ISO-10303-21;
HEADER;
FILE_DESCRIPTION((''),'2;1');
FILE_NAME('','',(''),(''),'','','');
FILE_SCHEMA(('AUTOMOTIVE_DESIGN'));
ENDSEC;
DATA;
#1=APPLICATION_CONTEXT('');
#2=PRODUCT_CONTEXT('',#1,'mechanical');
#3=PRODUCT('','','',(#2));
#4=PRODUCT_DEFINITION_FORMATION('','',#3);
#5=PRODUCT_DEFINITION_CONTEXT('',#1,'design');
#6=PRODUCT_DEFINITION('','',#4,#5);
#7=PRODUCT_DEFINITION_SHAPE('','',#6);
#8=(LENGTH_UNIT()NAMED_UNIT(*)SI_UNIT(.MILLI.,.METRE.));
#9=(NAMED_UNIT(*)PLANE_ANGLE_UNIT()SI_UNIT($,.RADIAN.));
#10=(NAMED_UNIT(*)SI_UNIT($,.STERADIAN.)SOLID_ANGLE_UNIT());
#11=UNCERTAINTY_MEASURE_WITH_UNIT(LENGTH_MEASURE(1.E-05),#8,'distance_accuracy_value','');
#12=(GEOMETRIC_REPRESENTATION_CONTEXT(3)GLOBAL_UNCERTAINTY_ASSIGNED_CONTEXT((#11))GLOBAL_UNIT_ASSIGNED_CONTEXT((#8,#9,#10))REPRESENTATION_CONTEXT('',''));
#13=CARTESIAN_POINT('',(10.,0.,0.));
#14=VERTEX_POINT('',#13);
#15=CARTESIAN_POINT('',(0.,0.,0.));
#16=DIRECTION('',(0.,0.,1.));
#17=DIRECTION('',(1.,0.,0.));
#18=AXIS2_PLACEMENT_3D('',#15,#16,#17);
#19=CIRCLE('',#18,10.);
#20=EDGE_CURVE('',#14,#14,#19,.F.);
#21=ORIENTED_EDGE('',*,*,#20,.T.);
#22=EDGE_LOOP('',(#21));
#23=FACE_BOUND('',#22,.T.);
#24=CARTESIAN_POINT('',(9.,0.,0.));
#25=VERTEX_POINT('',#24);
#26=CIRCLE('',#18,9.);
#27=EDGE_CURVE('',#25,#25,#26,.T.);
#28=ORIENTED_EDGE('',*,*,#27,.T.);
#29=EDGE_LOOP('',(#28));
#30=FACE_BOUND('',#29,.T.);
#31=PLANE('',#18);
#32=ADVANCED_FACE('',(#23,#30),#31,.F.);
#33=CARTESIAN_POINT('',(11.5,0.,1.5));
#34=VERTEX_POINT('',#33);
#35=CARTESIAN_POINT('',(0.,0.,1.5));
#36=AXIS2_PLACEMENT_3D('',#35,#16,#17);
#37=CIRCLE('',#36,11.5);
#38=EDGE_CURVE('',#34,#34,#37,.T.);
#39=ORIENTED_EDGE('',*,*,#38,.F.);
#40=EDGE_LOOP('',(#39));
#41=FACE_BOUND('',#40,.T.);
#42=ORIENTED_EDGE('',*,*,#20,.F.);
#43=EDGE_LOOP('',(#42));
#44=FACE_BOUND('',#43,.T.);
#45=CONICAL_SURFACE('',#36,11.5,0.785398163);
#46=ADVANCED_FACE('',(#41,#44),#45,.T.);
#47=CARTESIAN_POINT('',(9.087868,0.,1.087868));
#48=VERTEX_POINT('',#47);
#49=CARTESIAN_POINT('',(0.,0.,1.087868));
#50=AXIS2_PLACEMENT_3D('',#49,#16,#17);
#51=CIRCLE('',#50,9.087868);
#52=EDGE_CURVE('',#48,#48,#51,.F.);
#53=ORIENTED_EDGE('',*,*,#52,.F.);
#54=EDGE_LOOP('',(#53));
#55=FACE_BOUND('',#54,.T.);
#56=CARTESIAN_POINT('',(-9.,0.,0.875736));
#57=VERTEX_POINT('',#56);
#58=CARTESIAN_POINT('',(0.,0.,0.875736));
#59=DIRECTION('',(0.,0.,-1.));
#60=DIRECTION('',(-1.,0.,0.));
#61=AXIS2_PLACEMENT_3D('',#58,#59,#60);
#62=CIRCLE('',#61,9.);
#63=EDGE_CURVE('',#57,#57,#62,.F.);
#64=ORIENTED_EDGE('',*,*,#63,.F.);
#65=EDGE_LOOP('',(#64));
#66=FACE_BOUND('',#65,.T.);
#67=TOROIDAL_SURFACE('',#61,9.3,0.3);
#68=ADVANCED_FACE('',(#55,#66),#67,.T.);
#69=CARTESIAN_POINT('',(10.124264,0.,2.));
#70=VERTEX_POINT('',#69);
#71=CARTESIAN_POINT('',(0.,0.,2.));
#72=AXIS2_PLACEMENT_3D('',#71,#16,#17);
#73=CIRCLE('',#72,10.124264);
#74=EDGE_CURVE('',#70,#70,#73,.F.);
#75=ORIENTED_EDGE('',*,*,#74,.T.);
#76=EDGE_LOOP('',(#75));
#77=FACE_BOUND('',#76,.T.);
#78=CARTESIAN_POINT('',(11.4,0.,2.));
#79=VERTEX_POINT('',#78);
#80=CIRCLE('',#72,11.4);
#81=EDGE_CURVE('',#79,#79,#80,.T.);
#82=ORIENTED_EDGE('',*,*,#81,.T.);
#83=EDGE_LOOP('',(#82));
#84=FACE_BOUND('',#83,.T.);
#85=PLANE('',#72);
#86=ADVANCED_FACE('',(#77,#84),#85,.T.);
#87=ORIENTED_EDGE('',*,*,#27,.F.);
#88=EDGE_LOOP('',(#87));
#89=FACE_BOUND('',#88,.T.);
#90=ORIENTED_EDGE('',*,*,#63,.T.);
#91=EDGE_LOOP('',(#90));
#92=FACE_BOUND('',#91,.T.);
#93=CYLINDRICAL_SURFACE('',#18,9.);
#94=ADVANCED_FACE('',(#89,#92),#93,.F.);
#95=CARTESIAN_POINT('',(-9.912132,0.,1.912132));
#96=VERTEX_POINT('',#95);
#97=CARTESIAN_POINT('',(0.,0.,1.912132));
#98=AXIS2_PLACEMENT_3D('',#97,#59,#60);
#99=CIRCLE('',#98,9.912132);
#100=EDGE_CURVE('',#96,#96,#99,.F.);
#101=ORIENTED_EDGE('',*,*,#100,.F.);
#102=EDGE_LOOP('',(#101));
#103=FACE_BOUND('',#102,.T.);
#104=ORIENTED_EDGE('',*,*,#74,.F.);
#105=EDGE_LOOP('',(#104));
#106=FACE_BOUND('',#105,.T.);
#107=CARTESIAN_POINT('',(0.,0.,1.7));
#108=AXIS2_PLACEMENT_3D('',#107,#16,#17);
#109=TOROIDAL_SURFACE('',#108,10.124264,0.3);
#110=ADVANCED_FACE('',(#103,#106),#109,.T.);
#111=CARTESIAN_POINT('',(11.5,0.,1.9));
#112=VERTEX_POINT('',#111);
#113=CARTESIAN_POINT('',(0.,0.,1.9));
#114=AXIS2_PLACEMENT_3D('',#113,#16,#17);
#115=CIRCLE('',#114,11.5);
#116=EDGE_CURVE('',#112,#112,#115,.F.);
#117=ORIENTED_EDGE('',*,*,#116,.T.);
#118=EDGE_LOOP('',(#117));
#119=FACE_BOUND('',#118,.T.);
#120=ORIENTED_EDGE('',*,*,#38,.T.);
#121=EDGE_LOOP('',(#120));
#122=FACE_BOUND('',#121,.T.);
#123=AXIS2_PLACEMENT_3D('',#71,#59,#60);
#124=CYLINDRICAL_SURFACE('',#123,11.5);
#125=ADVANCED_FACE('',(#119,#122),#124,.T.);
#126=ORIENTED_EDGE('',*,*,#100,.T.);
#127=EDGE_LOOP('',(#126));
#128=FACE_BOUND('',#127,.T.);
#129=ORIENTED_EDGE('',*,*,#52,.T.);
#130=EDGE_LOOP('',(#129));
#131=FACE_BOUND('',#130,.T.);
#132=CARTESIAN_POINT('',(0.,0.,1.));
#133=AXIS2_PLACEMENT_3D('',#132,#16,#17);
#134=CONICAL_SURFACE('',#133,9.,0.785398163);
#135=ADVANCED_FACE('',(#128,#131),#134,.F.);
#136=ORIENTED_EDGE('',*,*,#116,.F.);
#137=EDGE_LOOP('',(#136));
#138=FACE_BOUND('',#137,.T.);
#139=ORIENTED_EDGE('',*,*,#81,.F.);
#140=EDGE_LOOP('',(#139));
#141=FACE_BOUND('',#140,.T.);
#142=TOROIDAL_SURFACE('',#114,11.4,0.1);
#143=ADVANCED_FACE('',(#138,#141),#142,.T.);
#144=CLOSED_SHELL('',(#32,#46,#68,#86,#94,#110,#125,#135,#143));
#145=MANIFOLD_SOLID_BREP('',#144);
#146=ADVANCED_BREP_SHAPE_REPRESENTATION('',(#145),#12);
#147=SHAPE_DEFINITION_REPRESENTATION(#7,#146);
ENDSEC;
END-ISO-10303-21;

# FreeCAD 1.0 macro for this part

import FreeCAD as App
import Part
import Sketcher


def edges_at(feature, points):
    """Names of the edges that pass closest to the given points."""
    edges = feature.Shape.Edges
    near = lambda p: min(range(len(edges)), key=lambda i: edges[i].distToShape(Part.Vertex(*p))[0])
    return sorted({f"Edge{near(p) + 1}" for p in points})

doc = App.newDocument("Part")
params = doc.addObject("Spreadsheet::Sheet", "Params")
for row, (alias, value) in enumerate([
    ("sketch1_diameter", "23 mm"),
    ("pad1_length", "2 mm"),
    ("chamfer_size", "1.5 mm"),
    ("sketch2_diameter", "18 mm"),
    ("pocket1_length", "2 mm"),
    ("chamfer2_size", "1 mm"),
    ("fillet_radius", "0.3 mm"),
    ("fillet2_radius", "0.1 mm"),
], start=1):
    params.set(f"A{row}", alias)
    params.set(f"B{row}", "=" + value)
    params.setAlias(f"B{row}", alias)

body = doc.addObject("PartDesign::Body", "Body")

# Sketch on XY plane
sketch1 = doc.addObject("Sketcher::SketchObject", "Sketch")
body.addObject(sketch1)
sketch1.AttachmentSupport = (doc.XY_Plane, [""])
sketch1.MapMode = "FlatFace"
sketch1.addGeometry(Part.Circle(App.Vector(0, 0, 0), App.Vector(0, 0, 1), 12), False)
sketch1.addConstraint([
    Sketcher.Constraint("Coincident", 0, 3, -1, 1),
    Sketcher.Constraint("Diameter", 0, 23.0),
])
sketch1.setExpression("Constraints[1]", "Params.sketch1_diameter")
pad1 = doc.addObject("PartDesign::Pad", "Pad")
body.addObject(pad1)
pad1.Profile = sketch1
pad1.setExpression("Length", "Params.pad1_length")
doc.recompute()

chamfer = doc.addObject("PartDesign::Chamfer", "Chamfer")
body.addObject(chamfer)
chamfer.Base = (pad1, edges_at(pad1, [(-11.5, 0, 0)]))
chamfer.setExpression("Size", "Params.chamfer_size")

# Sketch on XY plane
sketch2 = doc.addObject("Sketcher::SketchObject", "Sketch001")
body.addObject(sketch2)
sketch2.AttachmentSupport = (doc.XY_Plane, [""])
sketch2.MapMode = "FlatFace"
sketch2.AttachmentOffset = App.Placement(App.Vector(0, 0, 2), App.Rotation())
sketch2.addGeometry(Part.Circle(App.Vector(0, 0, 0), App.Vector(0, 0, 1), 9), False)
sketch2.addConstraint([
    Sketcher.Constraint("Coincident", 0, 3, -1, 1),
    Sketcher.Constraint("Diameter", 0, 18.0),
])
sketch2.setExpression("Constraints[1]", "Params.sketch2_diameter")
pocket1 = doc.addObject("PartDesign::Pocket", "Pocket")
body.addObject(pocket1)
pocket1.Profile = sketch2
pocket1.setExpression("Length", "Params.pocket1_length")
doc.recompute()

chamfer2 = doc.addObject("PartDesign::Chamfer", "Chamfer001")
body.addObject(chamfer2)
chamfer2.Base = (pocket1, edges_at(pocket1, [(-9, 0, 2)]))
chamfer2.setExpression("Size", "Params.chamfer2_size")
doc.recompute()

fillet = doc.addObject("PartDesign::Fillet", "Fillet")
body.addObject(fillet)
fillet.Base = (chamfer2, edges_at(chamfer2, [(-9, 0, 1), (-10, 0, 2)]))
fillet.setExpression("Radius", "Params.fillet_radius")
doc.recompute()

fillet2 = doc.addObject("PartDesign::Fillet", "Fillet001")
body.addObject(fillet2)
fillet2.Base = (fillet, edges_at(fillet, [(-11.5, 0, 2)]))
fillet2.setExpression("Radius", "Params.fillet2_radius")

doc.recompute()
